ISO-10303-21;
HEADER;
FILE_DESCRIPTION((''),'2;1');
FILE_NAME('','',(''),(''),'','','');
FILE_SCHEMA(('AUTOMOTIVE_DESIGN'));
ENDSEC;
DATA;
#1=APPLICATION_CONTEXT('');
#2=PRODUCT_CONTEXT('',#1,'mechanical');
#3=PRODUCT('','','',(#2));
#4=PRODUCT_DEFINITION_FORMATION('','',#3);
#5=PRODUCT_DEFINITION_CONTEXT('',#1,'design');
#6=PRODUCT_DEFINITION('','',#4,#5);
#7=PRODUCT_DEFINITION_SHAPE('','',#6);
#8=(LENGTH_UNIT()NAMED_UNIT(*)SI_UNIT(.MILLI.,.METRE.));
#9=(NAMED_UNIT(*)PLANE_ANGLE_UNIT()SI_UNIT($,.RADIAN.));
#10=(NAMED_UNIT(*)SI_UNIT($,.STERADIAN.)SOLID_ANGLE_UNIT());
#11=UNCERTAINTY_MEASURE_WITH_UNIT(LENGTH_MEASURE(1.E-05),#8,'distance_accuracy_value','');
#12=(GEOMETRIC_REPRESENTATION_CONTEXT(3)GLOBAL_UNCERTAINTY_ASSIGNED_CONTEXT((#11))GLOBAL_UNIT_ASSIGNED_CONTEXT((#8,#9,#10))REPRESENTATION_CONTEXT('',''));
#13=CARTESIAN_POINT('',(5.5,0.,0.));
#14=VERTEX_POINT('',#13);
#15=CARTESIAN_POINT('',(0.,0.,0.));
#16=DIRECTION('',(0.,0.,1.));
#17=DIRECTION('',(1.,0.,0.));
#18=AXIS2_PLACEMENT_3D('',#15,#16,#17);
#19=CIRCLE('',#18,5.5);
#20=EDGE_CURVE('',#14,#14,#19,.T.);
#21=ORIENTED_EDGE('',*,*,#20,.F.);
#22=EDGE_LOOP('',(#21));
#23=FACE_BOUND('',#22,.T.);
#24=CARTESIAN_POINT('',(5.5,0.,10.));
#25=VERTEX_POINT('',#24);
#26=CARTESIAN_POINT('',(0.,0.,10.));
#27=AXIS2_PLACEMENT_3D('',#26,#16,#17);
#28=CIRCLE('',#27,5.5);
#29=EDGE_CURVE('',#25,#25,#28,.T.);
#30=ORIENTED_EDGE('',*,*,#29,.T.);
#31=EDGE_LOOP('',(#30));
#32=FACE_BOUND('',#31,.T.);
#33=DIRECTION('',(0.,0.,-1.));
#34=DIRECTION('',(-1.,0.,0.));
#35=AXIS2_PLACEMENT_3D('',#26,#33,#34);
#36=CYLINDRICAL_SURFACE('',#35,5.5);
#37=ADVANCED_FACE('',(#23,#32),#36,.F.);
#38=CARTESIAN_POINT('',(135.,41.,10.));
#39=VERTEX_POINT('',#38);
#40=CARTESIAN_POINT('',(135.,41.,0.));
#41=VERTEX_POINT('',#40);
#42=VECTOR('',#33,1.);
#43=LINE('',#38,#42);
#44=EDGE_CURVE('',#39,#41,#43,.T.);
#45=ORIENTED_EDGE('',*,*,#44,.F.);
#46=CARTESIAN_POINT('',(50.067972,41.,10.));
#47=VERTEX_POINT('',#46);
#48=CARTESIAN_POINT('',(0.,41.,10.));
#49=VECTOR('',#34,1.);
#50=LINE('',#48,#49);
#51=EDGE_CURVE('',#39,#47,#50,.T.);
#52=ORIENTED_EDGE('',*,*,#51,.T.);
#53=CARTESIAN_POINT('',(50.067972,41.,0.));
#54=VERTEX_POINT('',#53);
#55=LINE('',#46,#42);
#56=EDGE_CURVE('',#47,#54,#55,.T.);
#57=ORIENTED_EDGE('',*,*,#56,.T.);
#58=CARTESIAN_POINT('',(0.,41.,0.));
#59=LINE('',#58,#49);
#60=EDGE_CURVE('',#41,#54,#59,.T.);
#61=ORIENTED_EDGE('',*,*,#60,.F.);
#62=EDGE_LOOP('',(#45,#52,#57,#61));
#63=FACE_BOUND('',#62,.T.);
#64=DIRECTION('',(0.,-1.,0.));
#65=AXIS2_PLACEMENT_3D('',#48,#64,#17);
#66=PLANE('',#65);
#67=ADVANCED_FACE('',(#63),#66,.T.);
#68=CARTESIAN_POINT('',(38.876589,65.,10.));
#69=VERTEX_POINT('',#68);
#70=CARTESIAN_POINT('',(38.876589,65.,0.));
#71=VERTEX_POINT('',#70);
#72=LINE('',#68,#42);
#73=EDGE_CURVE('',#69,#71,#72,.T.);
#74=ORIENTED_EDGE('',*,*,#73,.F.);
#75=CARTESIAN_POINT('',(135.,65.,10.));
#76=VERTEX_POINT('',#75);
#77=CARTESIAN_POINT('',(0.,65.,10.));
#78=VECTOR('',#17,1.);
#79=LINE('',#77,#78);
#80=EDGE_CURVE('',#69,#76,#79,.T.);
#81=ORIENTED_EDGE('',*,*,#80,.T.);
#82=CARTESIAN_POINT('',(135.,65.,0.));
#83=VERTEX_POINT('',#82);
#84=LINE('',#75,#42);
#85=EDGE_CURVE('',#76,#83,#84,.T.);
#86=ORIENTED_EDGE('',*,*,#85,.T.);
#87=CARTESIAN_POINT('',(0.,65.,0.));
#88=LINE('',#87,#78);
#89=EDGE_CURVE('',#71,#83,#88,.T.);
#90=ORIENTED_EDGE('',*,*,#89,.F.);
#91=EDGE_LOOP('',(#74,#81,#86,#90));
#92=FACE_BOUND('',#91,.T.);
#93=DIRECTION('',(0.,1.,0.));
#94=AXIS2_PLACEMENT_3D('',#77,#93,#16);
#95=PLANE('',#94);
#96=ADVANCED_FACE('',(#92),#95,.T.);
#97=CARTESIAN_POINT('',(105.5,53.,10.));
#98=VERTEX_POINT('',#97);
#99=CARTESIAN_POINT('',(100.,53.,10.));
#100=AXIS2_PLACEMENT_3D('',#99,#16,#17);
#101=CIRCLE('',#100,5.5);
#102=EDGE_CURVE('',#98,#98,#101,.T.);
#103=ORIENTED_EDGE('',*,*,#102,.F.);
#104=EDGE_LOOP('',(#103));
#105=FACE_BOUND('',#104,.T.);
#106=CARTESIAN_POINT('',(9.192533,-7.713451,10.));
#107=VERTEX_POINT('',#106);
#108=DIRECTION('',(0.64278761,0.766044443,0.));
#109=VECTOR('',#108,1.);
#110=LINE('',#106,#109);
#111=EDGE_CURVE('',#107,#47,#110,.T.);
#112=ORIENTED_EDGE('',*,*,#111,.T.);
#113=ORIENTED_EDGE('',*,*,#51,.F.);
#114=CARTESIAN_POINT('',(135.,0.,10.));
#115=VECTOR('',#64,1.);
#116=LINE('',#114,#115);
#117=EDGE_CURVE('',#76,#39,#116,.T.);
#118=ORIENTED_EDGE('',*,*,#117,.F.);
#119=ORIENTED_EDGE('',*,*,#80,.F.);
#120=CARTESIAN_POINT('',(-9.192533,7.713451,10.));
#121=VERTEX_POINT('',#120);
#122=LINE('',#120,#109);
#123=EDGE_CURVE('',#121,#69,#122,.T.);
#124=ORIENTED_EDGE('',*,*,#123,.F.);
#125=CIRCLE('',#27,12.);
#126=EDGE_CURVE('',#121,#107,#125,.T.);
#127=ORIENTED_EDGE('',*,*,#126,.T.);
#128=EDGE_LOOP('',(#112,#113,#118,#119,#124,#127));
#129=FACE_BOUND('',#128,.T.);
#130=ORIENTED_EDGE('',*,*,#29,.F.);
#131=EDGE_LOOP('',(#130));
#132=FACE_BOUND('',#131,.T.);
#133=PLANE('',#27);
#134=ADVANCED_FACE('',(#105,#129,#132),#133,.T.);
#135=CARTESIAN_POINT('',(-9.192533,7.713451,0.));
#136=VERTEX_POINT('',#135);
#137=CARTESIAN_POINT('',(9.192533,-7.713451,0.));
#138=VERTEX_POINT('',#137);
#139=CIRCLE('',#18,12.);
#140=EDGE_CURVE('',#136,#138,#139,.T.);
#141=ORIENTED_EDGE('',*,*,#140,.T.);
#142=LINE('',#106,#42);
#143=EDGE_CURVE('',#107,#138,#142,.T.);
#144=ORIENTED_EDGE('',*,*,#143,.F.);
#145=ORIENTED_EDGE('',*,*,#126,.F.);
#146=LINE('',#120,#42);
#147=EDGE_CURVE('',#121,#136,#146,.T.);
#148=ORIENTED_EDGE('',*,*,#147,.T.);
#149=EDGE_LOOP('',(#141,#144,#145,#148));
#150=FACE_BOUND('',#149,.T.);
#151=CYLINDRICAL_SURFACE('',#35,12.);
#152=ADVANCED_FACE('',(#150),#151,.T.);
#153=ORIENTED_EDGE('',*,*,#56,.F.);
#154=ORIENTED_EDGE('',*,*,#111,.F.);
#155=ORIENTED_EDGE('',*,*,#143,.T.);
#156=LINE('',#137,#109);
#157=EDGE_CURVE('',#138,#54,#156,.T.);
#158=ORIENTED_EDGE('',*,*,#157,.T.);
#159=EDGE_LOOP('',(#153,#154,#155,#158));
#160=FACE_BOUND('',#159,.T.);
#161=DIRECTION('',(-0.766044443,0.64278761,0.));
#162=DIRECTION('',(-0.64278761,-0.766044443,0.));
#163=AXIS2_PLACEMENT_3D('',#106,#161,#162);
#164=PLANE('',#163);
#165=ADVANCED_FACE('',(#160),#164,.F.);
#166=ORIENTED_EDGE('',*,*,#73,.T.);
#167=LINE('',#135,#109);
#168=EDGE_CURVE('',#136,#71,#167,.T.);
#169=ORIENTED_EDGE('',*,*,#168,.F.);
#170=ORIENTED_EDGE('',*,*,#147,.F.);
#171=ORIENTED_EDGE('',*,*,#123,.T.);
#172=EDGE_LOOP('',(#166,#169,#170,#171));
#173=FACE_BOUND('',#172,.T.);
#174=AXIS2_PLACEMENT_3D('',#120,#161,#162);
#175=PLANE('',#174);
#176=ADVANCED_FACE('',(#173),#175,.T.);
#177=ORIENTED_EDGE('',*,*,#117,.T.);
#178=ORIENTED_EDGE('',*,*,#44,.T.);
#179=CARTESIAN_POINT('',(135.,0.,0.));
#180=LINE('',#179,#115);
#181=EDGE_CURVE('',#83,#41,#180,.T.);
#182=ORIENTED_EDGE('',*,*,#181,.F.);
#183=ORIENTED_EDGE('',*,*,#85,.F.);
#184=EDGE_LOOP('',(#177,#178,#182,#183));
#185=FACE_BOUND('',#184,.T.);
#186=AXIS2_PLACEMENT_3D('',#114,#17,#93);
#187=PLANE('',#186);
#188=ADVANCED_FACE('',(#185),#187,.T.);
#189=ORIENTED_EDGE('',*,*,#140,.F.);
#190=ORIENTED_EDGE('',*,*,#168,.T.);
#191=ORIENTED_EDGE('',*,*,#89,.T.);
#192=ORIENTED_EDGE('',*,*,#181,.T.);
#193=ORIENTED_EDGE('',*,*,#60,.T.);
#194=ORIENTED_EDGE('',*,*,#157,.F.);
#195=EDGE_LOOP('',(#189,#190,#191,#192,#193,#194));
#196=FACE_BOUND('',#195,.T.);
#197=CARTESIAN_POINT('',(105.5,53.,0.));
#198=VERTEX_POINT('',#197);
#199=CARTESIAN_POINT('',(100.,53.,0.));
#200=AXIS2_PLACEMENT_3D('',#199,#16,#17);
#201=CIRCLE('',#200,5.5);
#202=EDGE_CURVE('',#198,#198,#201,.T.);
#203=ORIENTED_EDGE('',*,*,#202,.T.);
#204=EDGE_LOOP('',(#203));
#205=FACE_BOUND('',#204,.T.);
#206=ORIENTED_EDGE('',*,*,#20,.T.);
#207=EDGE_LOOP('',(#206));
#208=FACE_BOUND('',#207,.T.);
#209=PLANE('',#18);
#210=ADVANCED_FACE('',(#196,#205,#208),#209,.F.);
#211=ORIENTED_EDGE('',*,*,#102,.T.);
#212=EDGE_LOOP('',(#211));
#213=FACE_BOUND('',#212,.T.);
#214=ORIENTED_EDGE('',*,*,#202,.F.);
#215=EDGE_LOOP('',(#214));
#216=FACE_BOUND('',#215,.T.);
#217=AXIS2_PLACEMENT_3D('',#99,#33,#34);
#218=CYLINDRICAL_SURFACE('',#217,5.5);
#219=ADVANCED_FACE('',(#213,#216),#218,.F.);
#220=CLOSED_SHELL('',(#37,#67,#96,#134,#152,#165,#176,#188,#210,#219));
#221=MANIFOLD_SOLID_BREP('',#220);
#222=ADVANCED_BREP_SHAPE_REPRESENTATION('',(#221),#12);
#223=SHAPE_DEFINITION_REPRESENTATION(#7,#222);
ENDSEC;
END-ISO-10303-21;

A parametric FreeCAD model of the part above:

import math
import FreeCAD as App
import Part
import Sketcher

V = App.Vector
Q = App.Units.Quantity

doc = App.newDocument("Part")
body = doc.addObject("PartDesign::Body", "Body")

# Sketch on XY plane
sketch1 = body.newObject("Sketcher::SketchObject", "Sketch")
sketch1.AttachmentSupport = (doc.getObject("XY_Plane"), [""])
sketch1.MapMode = "FlatFace"
sketch1.addGeometry([
    Part.ArcOfCircle(Part.Circle(V(0, 0, 0), V(0, 0, 1), 12), math.radians(140), math.radians(320)),  # 0
    Part.LineSegment(V(9, -8, 0), V(50, 41, 0)),  # 1
    Part.LineSegment(V(50, 41, 0), V(135, 41, 0)),  # 2
    Part.LineSegment(V(135, 41, 0), V(135, 65, 0)),  # 3
    Part.LineSegment(V(135, 65, 0), V(39, 65, 0)),  # 4
    Part.LineSegment(V(39, 65, 0), V(-9, 8, 0)),  # 5
    Part.Circle(V(0, 0, 0), V(0, 0, 1), 6),  # 6
    Part.Circle(V(100, 53, 0), V(0, 0, 1), 6),  # 7
], False)
sketch1.addConstraint([
    Sketcher.Constraint("Tangent", 0, 2, 1, 1),
    Sketcher.Constraint("Coincident", 1, 2, 2, 1),
    Sketcher.Constraint("Coincident", 2, 2, 3, 1),
    Sketcher.Constraint("Coincident", 3, 2, 4, 1),
    Sketcher.Constraint("Coincident", 4, 2, 5, 1),
    Sketcher.Constraint("Tangent", 5, 2, 0, 1),
    Sketcher.Constraint("Horizontal", 2),
    Sketcher.Constraint("Vertical", 3),
    Sketcher.Constraint("Horizontal", 4),
    Sketcher.Constraint("Coincident", 0, 3, -1, 1),
    Sketcher.Constraint("Coincident", 6, 3, -1, 1),
    Sketcher.Constraint("Equal", 6, 7),
    Sketcher.Constraint("Parallel", 1, 5),
    Sketcher.Constraint("Diameter", 6, Q("11 mm")),
    Sketcher.Constraint("Radius", 0, Q("12 mm")),
    Sketcher.Constraint("DistanceY", 3, 1, 3, 2, Q("24 mm")),
    Sketcher.Constraint("Angle", 1, Q("50 deg")),
    Sketcher.Constraint("DistanceX", -1, 1, 7, 3, Q("100 mm")),
    Sketcher.Constraint("DistanceY", -1, 1, 7, 3, Q("53 mm")),
    Sketcher.Constraint("DistanceY", -1, 1, 1, 2, Q("41 mm")),
    Sketcher.Constraint("DistanceX", -1, 1, 2, 2, Q("135 mm")),
])
pad1 = body.newObject("PartDesign::Pad", "Pad")
pad1.Profile = sketch1
pad1.Length = 10

doc.recompute()
